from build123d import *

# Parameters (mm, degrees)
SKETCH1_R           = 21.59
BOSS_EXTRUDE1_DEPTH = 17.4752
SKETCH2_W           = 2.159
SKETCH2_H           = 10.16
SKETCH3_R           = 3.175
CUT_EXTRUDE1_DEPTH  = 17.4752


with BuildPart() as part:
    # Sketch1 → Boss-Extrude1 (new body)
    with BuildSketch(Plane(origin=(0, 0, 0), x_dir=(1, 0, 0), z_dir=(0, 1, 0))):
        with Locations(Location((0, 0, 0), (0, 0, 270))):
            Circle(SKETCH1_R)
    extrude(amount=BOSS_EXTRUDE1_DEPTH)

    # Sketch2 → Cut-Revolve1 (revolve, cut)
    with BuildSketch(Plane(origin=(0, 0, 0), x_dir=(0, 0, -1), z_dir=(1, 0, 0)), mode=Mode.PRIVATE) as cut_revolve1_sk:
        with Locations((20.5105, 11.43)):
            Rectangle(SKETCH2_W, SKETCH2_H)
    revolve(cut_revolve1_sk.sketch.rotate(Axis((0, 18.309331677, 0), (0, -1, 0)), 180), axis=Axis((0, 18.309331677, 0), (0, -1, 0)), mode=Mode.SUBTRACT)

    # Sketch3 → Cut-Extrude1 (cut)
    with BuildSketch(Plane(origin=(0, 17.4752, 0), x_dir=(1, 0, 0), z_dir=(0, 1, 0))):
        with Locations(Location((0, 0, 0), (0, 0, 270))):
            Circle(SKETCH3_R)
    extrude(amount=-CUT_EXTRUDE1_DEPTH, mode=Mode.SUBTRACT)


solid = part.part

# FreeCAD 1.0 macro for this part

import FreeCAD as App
import Part
import Sketcher

V = App.Vector
Q = App.Units.Quantity

doc = App.newDocument("Part")
body = doc.addObject("PartDesign::Body", "Body")

# Sketch on XZ plane
sketch1 = body.newObject("Sketcher::SketchObject", "Sketch")
sketch1.AttachmentSupport = (doc.getObject("XZ_Plane"), [""])
sketch1.MapMode = "FlatFace"
sketch1.addGeometry(Part.Circle(V(0, 0, 0), V(0, 0, 1), 21.59), False)
sketch1.addConstraint(Sketcher.Constraint("Coincident", 0, 3, -1, 1))
sketch1.addConstraint(Sketcher.Constraint("Diameter", 0, Q("1.7 in")))
pad1 = body.newObject("PartDesign::Pad", "Pad")
pad1.Profile = sketch1
pad1.Length = Q("0.688 in")
pad1.Reversed = True

# Sketch on YZ plane
sketch2 = body.newObject("Sketcher::SketchObject", "Sketch001")
sketch2.AttachmentSupport = (doc.getObject("YZ_Plane"), [""])
sketch2.MapMode = "FlatFace"
sketch2.addGeometry(Part.LineSegment(V(16.51, -19.431, 0), V(6.35, -19.431, 0)), False)
sketch2.addGeometry(Part.LineSegment(V(6.35, -19.431, 0), V(6.35, -21.59, 0)), False)
sketch2.addGeometry(Part.LineSegment(V(6.35, -21.59, 0), V(16.51, -21.59, 0)), False)
sketch2.addGeometry(Part.LineSegment(V(16.51, -21.59, 0), V(16.51, -19.431, 0)), False)
sketch2.addConstraint(Sketcher.Constraint("Coincident", 0, 2, 1, 1))
sketch2.addConstraint(Sketcher.Constraint("Coincident", 1, 2, 2, 1))
sketch2.addConstraint(Sketcher.Constraint("Coincident", 2, 2, 3, 1))
sketch2.addConstraint(Sketcher.Constraint("Coincident", 3, 2, 0, 1))
sketch2.addConstraint(Sketcher.Constraint("Horizontal", 0))
sketch2.addConstraint(Sketcher.Constraint("Vertical", 1))
sketch2.addConstraint(Sketcher.Constraint("Horizontal", 2))
sketch2.addConstraint(Sketcher.Constraint("Vertical", 3))
sketch2.addConstraint(Sketcher.Constraint("DistanceX", 0, 2, 0, 1, Q("0.4 in")))
sketch2.addConstraint(Sketcher.Constraint("DistanceY", 1, 2, 1, 1, Q("0.085 in")))
sketch2.addConstraint(Sketcher.Constraint("DistanceX", -1, 1, 0, 2, Q("0.25 in")))
sketch2.addConstraint(Sketcher.Constraint("DistanceY", 1, 2, -1, 1, Q("0.85 in")))
groove = body.newObject("PartDesign::Groove", "Groove")
groove.Profile = sketch2
groove.ReferenceAxis = (sketch2, ["H_Axis"])
groove.Angle = 360

# Sketch on XZ plane
sketch3 = body.newObject("Sketcher::SketchObject", "Sketch002")
sketch3.AttachmentSupport = (doc.getObject("XZ_Plane"), [""])
sketch3.MapMode = "FlatFace"
sketch3.AttachmentOffset = App.Placement(V(0, 0, -0.688 * 25.4), App.Rotation())
sketch3.addGeometry(Part.Circle(V(0, 0, 0), V(0, 0, 1), 3.175), False)
sketch3.addConstraint(Sketcher.Constraint("Coincident", 0, 3, -1, 1))
sketch3.addConstraint(Sketcher.Constraint("Diameter", 0, Q("0.25 in")))
pocket1 = body.newObject("PartDesign::Pocket", "Pocket")
pocket1.Profile = sketch3
pocket1.Length = Q("0.688 in")
pocket1.Reversed = True

doc.recompute()
